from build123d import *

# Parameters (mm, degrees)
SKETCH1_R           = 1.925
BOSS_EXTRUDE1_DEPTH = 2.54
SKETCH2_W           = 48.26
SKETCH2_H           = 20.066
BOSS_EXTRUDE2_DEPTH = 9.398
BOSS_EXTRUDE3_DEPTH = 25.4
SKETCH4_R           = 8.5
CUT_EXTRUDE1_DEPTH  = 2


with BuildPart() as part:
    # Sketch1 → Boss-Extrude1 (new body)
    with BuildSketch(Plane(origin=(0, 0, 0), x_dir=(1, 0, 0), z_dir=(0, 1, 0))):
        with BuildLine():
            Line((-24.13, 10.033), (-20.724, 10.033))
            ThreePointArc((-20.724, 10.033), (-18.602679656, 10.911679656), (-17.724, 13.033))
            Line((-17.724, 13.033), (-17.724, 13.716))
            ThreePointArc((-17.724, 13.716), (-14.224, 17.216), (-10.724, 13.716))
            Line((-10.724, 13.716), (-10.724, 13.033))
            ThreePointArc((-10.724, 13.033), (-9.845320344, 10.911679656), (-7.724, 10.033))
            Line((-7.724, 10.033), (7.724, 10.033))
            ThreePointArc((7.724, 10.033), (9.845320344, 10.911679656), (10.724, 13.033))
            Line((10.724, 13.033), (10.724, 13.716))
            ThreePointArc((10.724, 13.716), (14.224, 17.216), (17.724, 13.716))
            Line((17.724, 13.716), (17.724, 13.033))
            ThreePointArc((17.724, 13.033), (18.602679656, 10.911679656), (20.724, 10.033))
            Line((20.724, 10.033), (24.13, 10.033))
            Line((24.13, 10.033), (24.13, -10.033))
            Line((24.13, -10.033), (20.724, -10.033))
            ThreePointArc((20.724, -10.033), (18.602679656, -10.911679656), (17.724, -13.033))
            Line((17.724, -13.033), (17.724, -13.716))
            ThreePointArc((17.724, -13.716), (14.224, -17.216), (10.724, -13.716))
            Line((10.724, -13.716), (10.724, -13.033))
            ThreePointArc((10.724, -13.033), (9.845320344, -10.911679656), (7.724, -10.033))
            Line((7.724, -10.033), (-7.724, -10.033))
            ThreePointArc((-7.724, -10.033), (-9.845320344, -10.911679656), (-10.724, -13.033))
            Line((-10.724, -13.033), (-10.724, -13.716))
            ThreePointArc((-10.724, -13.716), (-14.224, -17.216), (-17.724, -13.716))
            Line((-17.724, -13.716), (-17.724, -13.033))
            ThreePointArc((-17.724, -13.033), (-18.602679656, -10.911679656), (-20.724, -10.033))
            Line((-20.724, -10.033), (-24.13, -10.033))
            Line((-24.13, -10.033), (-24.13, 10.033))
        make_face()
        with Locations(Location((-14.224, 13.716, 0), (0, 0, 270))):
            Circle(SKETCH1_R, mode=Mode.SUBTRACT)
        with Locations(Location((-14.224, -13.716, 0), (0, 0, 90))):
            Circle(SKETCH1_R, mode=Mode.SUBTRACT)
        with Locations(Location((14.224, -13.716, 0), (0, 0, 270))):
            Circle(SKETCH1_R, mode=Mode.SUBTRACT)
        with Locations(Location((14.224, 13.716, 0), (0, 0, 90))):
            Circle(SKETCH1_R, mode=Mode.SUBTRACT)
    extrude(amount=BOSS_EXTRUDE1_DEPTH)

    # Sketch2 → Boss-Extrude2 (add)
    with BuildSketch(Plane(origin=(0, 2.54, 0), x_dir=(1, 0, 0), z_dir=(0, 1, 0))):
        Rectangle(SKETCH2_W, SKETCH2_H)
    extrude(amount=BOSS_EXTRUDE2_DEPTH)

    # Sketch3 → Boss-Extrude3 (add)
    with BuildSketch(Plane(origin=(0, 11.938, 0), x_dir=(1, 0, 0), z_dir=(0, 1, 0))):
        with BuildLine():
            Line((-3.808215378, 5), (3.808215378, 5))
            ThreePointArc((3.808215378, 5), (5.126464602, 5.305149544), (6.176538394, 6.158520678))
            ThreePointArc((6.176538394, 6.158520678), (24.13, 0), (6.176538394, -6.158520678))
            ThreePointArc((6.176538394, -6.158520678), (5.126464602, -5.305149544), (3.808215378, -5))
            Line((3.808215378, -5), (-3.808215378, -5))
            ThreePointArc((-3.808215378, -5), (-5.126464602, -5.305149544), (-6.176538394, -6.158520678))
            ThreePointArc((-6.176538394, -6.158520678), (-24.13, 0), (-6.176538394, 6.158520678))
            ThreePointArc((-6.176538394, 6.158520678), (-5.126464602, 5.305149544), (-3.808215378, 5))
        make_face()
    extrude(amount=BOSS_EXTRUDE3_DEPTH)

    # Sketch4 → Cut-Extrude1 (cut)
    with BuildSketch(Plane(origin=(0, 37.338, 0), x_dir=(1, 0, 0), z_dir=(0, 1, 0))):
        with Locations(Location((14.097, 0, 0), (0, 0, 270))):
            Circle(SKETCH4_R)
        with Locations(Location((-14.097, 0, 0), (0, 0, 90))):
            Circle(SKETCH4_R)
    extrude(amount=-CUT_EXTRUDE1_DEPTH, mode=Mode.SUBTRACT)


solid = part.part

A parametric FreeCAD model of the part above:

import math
import FreeCAD as App
import Part
import Sketcher
from FreeCAD import Vector
Q = App.Units.Quantity


def add_polygon(sketch, points):
    """Adds a closed chain of lines whose ends are joined by coincident constraints."""
    first, n = sketch.GeometryCount, len(points)
    for a, b in zip(points, points[1:] + points[:1]):
        sketch.addGeometry(Part.LineSegment(App.Vector(*a, 0), App.Vector(*b, 0)), False)
    for i in range(n):
        sketch.addConstraint(Sketcher.Constraint("Coincident", first + i, 2, first + (i + 1) % n, 1))

doc = App.newDocument("Part")
body = doc.addObject("PartDesign::Body", "Body")

# Sketch on XZ plane
sketch1 = body.newObject("Sketcher::SketchObject", "Sketch")
sketch1.AttachmentSupport = (doc.getObject("XZ_Plane"), [""])
sketch1.MapMode = "FlatFace"
sketch1.addGeometry(Part.LineSegment(Vector(-20.7, -10, 0), Vector(-24.1, -10, 0)), False)
sketch1.addGeometry(Part.LineSegment(Vector(-24.1, -10, 0), Vector(-24.1, 10, 0)), False)
sketch1.addGeometry(Part.LineSegment(Vector(-24.1, 10, 0), Vector(-20.7, 10, 0)), False)
sketch1.addGeometry(Part.ArcOfCircle(Part.Circle(Vector(-20.7, 13, 0), Vector(0, 0, 1), 3), math.radians(-90), math.radians(0)), False)
sketch1.addGeometry(Part.LineSegment(Vector(-17.7, 13, 0), Vector(-17.7, 13.7, 0)), False)
sketch1.addGeometry(Part.ArcOfCircle(Part.Circle(Vector(-14.2, 13.7, 0), Vector(0, 0, 1), 3.5), math.radians(0), math.radians(180)), False)
sketch1.addGeometry(Part.LineSegment(Vector(-10.7, 13.7, 0), Vector(-10.7, 13, 0)), False)
sketch1.addGeometry(Part.ArcOfCircle(Part.Circle(Vector(-7.7, 13, 0), Vector(0, 0, 1), 3), math.radians(180), math.radians(270)), False)
sketch1.addGeometry(Part.LineSegment(Vector(-7.7, 10, 0), Vector(7.7, 10, 0)), False)
sketch1.addGeometry(Part.ArcOfCircle(Part.Circle(Vector(7.7, 13, 0), Vector(0, 0, 1), 3), math.radians(-90), math.radians(0)), False)
sketch1.addGeometry(Part.LineSegment(Vector(10.7, 13, 0), Vector(10.7, 13.7, 0)), False)
sketch1.addGeometry(Part.ArcOfCircle(Part.Circle(Vector(14.2, 13.7, 0), Vector(0, 0, 1), 3.5), math.radians(0), math.radians(180)), False)
sketch1.addGeometry(Part.LineSegment(Vector(17.7, 13.7, 0), Vector(17.7, 13, 0)), False)
sketch1.addGeometry(Part.ArcOfCircle(Part.Circle(Vector(20.7, 13, 0), Vector(0, 0, 1), 3), math.radians(180), math.radians(270)), False)
sketch1.addGeometry(Part.LineSegment(Vector(20.7, 10, 0), Vector(24.1, 10, 0)), False)
sketch1.addGeometry(Part.LineSegment(Vector(24.1, 10, 0), Vector(24.1, -10, 0)), False)
sketch1.addGeometry(Part.LineSegment(Vector(24.1, -10, 0), Vector(20.7, -10, 0)), False)
sketch1.addGeometry(Part.ArcOfCircle(Part.Circle(Vector(20.7, -13, 0), Vector(0, 0, 1), 3), math.radians(90), math.radians(180)), False)
sketch1.addGeometry(Part.LineSegment(Vector(17.7, -13, 0), Vector(17.7, -13.7, 0)), False)
sketch1.addGeometry(Part.ArcOfCircle(Part.Circle(Vector(14.2, -13.7, 0), Vector(0, 0, 1), 3.5), math.radians(180), math.radians(360)), False)
sketch1.addGeometry(Part.LineSegment(Vector(10.7, -13.7, 0), Vector(10.7, -13, 0)), False)
sketch1.addGeometry(Part.ArcOfCircle(Part.Circle(Vector(7.7, -13, 0), Vector(0, 0, 1), 3), math.radians(0), math.radians(90)), False)
sketch1.addGeometry(Part.LineSegment(Vector(7.7, -10, 0), Vector(-7.7, -10, 0)), False)
sketch1.addGeometry(Part.ArcOfCircle(Part.Circle(Vector(-7.7, -13, 0), Vector(0, 0, 1), 3), math.radians(90), math.radians(180)), False)
sketch1.addGeometry(Part.LineSegment(Vector(-10.7, -13, 0), Vector(-10.7, -13.7, 0)), False)
sketch1.addGeometry(Part.ArcOfCircle(Part.Circle(Vector(-14.2, -13.7, 0), Vector(0, 0, 1), 3.5), math.radians(180), math.radians(360)), False)
sketch1.addGeometry(Part.LineSegment(Vector(-17.7, -13.7, 0), Vector(-17.7, -13, 0)), False)
sketch1.addGeometry(Part.ArcOfCircle(Part.Circle(Vector(-20.7, -13, 0), Vector(0, 0, 1), 3), math.radians(0), math.radians(90)), False)
sketch1.addGeometry(Part.Circle(Vector(14.2, 13.7, 0), Vector(0, 0, 1), 1.9), False)
sketch1.addGeometry(Part.Circle(Vector(-14.2, 13.7, 0), Vector(0, 0, 1), 1.9), False)
sketch1.addGeometry(Part.Circle(Vector(14.2, -13.7, 0), Vector(0, 0, 1), 1.9), False)
sketch1.addGeometry(Part.Circle(Vector(-14.2, -13.7, 0), Vector(0, 0, 1), 1.9), False)
sketch1.addConstraint(Sketcher.Constraint("Coincident", 0, 2, 1, 1))
sketch1.addConstraint(Sketcher.Constraint("Coincident", 1, 2, 2, 1))
sketch1.addConstraint(Sketcher.Constraint("Tangent", 2, 2, 3, 1))
sketch1.addConstraint(Sketcher.Constraint("Tangent", 3, 2, 4, 1))
sketch1.addConstraint(Sketcher.Constraint("Tangent", 4, 2, 5, 2))
sketch1.addConstraint(Sketcher.Constraint("Tangent", 5, 1, 6, 1))
sketch1.addConstraint(Sketcher.Constraint("Tangent", 6, 2, 7, 1))
sketch1.addConstraint(Sketcher.Constraint("Tangent", 7, 2, 8, 1))
sketch1.addConstraint(Sketcher.Constraint("Tangent", 8, 2, 9, 1))
sketch1.addConstraint(Sketcher.Constraint("Tangent", 9, 2, 10, 1))
sketch1.addConstraint(Sketcher.Constraint("Tangent", 10, 2, 11, 2))
sketch1.addConstraint(Sketcher.Constraint("Tangent", 11, 1, 12, 1))
sketch1.addConstraint(Sketcher.Constraint("Tangent", 12, 2, 13, 1))
sketch1.addConstraint(Sketcher.Constraint("Tangent", 13, 2, 14, 1))
sketch1.addConstraint(Sketcher.Constraint("Coincident", 14, 2, 15, 1))
sketch1.addConstraint(Sketcher.Constraint("Coincident", 15, 2, 16, 1))
sketch1.addConstraint(Sketcher.Constraint("Tangent", 16, 2, 17, 1))
sketch1.addConstraint(Sketcher.Constraint("Tangent", 17, 2, 18, 1))
sketch1.addConstraint(Sketcher.Constraint("Tangent", 18, 2, 19, 2))
sketch1.addConstraint(Sketcher.Constraint("Tangent", 19, 1, 20, 1))
sketch1.addConstraint(Sketcher.Constraint("Tangent", 20, 2, 21, 1))
sketch1.addConstraint(Sketcher.Constraint("Tangent", 21, 2, 22, 1))
sketch1.addConstraint(Sketcher.Constraint("Tangent", 22, 2, 23, 1))
sketch1.addConstraint(Sketcher.Constraint("Tangent", 23, 2, 24, 1))
sketch1.addConstraint(Sketcher.Constraint("Tangent", 24, 2, 25, 2))
sketch1.addConstraint(Sketcher.Constraint("Tangent", 25, 1, 26, 1))
sketch1.addConstraint(Sketcher.Constraint("Tangent", 26, 2, 27, 1))
sketch1.addConstraint(Sketcher.Constraint("Tangent", 27, 2, 0, 1))
sketch1.addConstraint(Sketcher.Constraint("Horizontal", 0))
sketch1.addConstraint(Sketcher.Constraint("Vertical", 1))
sketch1.addConstraint(Sketcher.Constraint("Horizontal", 2))
sketch1.addConstraint(Sketcher.Constraint("Vertical", 4))
sketch1.addConstraint(Sketcher.Constraint("Vertical", 6))
sketch1.addConstraint(Sketcher.Constraint("Horizontal", 8))
sketch1.addConstraint(Sketcher.Constraint("Vertical", 10))
sketch1.addConstraint(Sketcher.Constraint("Vertical", 12))
sketch1.addConstraint(Sketcher.Constraint("Horizontal", 14))
sketch1.addConstraint(Sketcher.Constraint("Vertical", 15))
sketch1.addConstraint(Sketcher.Constraint("Horizontal", 16))
sketch1.addConstraint(Sketcher.Constraint("Vertical", 18))
sketch1.addConstraint(Sketcher.Constraint("Vertical", 20))
sketch1.addConstraint(Sketcher.Constraint("Horizontal", 22))
sketch1.addConstraint(Sketcher.Constraint("Vertical", 24))
sketch1.addConstraint(Sketcher.Constraint("Vertical", 26))
sketch1.addConstraint(Sketcher.Constraint("Coincident", 28, 3, 11, 3))
sketch1.addConstraint(Sketcher.Constraint("Coincident", 29, 3, 5, 3))
sketch1.addConstraint(Sketcher.Constraint("Coincident", 30, 3, 19, 3))
sketch1.addConstraint(Sketcher.Constraint("Coincident", 31, 3, 25, 3))
sketch1.addConstraint(Sketcher.Constraint("Equal", 3, 7))
sketch1.addConstraint(Sketcher.Constraint("Equal", 7, 9))
sketch1.addConstraint(Sketcher.Constraint("Equal", 5, 11))
sketch1.addConstraint(Sketcher.Constraint("Equal", 9, 13))
sketch1.addConstraint(Sketcher.Constraint("Equal", 13, 17))
sketch1.addConstraint(Sketcher.Constraint("Equal", 11, 19))
sketch1.addConstraint(Sketcher.Constraint("Equal", 17, 21))
sketch1.addConstraint(Sketcher.Constraint("Equal", 21, 23))
sketch1.addConstraint(Sketcher.Constraint("Equal", 19, 25))
sketch1.addConstraint(Sketcher.Constraint("Equal", 23, 27))
sketch1.addConstraint(Sketcher.Constraint("Equal", 28, 29))
sketch1.addConstraint(Sketcher.Constraint("Equal", 29, 30))
sketch1.addConstraint(Sketcher.Constraint("Equal", 30, 31))
sketch1.addConstraint(Sketcher.Constraint("Symmetric", 3, 3, 17, 3, -1, 1))
sketch1.addConstraint(Sketcher.Constraint("Symmetric", 9, 3, 23, 3, -1, 1))
sketch1.addConstraint(Sketcher.Constraint("Symmetric", 0, 2, 14, 2, -1, 1))
sketch1.addConstraint(Sketcher.Constraint("Symmetric", 5, 3, 11, 3, -2))
sketch1.addConstraint(Sketcher.Constraint("Horizontal", 3, 3, 7, 3))
sketch1.addConstraint(Sketcher.Constraint("Horizontal", 9, 3, 13, 3))
sketch1.addConstraint(Sketcher.Constraint("Horizontal", 19, 3, 25, 3))
sketch1.addConstraint(Sketcher.Constraint("Equal", 12, 18))
sketch1.addConstraint(Sketcher.Constraint("DistanceY", 1, 1, 1, 2, Q("0.79 in")))
sketch1.addConstraint(Sketcher.Constraint("Diameter", 28, Q("3.85 mm")))
sketch1.addConstraint(Sketcher.Constraint("DistanceX", 5, 3, -1, 1, Q("0.56 in")))
sketch1.addConstraint(Sketcher.Constraint("DistanceY", -1, 1, 5, 3, Q("0.54 in")))
sketch1.addConstraint(Sketcher.Constraint("DistanceX", 0, 2, -1, 1, Q("0.95 in")))
sketch1.addConstraint(Sketcher.Constraint("Radius", 3, Q("3 mm")))
sketch1.addConstraint(Sketcher.Constraint("Radius", 5, Q("3.5 mm")))
pad1 = body.newObject("PartDesign::Pad", "Pad")
pad1.Profile = sketch1
pad1.Length = Q("0.1 in")
pad1.Reversed = True

# Sketch on XZ plane
sketch2 = body.newObject("Sketcher::SketchObject", "Sketch001")
sketch2.AttachmentSupport = (doc.getObject("XZ_Plane"), [""])
sketch2.MapMode = "FlatFace"
sketch2.AttachmentOffset = App.Placement(Vector(0, 0, -0.1 * 25.4), App.Rotation())
add_polygon(sketch2, [(-24, -10), (-24, 10), (24, 10), (24, -10)])  # lines 0-3
sketch2.addConstraint(Sketcher.Constraint("Vertical", 0))
sketch2.addConstraint(Sketcher.Constraint("Horizontal", 1))
sketch2.addConstraint(Sketcher.Constraint("Vertical", 2))
sketch2.addConstraint(Sketcher.Constraint("Horizontal", 3))
sketch2.addConstraint(Sketcher.Constraint("Symmetric", 0, 2, 2, 2, -1, 1))
sketch2.addConstraint(Sketcher.Constraint("DistanceX", 1, 1, 1, 2, Q("1.9 in")))
sketch2.addConstraint(Sketcher.Constraint("DistanceY", 0, 1, 0, 2, Q("0.79 in")))
pad2 = body.newObject("PartDesign::Pad", "Pad001")
pad2.Profile = sketch2
pad2.Length = Q("0.37 in")
pad2.Reversed = True

# Sketch on XZ plane
sketch3 = body.newObject("Sketcher::SketchObject", "Sketch002")
sketch3.AttachmentSupport = (doc.getObject("XZ_Plane"), [""])
sketch3.MapMode = "FlatFace"
sketch3.AttachmentOffset = App.Placement(Vector(0, 0, -0.47 * 25.4), App.Rotation())
sketch3.addGeometry(Part.LineSegment(Vector(3.8, -5, 0), Vector(-3.8, -5, 0)), False)
sketch3.addGeometry(Part.ArcOfCircle(Part.Circle(Vector(-3.8, -8, 0), Vector(0, 0, 1), 3), math.radians(90), math.radians(142)), False)
sketch3.addGeometry(Part.ArcOfCircle(Part.Circle(Vector(-14.1, 0, 0), Vector(0, 0, 1), 10), math.radians(38), math.radians(322)), False)
sketch3.addGeometry(Part.ArcOfCircle(Part.Circle(Vector(-3.8, 8, 0), Vector(0, 0, 1), 3), math.radians(-142), math.radians(-90)), False)
sketch3.addGeometry(Part.LineSegment(Vector(-3.8, 5, 0), Vector(3.8, 5, 0)), False)
sketch3.addGeometry(Part.ArcOfCircle(Part.Circle(Vector(3.8, 8, 0), Vector(0, 0, 1), 3), math.radians(-90), math.radians(-38)), False)
sketch3.addGeometry(Part.ArcOfCircle(Part.Circle(Vector(14.1, 0, 0), Vector(0, 0, 1), 10), math.radians(-142), math.radians(142)), False)
sketch3.addGeometry(Part.ArcOfCircle(Part.Circle(Vector(3.8, -8, 0), Vector(0, 0, 1), 3), math.radians(38), math.radians(90)), False)
sketch3.addConstraint(Sketcher.Constraint("Tangent", 0, 2, 1, 1))
sketch3.addConstraint(Sketcher.Constraint("Tangent", 1, 2, 2, 2))
sketch3.addConstraint(Sketcher.Constraint("Tangent", 2, 1, 3, 1))
sketch3.addConstraint(Sketcher.Constraint("Tangent", 3, 2, 4, 1))
sketch3.addConstraint(Sketcher.Constraint("Tangent", 4, 2, 5, 1))
sketch3.addConstraint(Sketcher.Constraint("Tangent", 5, 2, 6, 2))
sketch3.addConstraint(Sketcher.Constraint("Tangent", 6, 1, 7, 1))
sketch3.addConstraint(Sketcher.Constraint("Tangent", 7, 2, 0, 1))
sketch3.addConstraint(Sketcher.Constraint("Horizontal", 0))
sketch3.addConstraint(Sketcher.Constraint("Horizontal", 4))
sketch3.addConstraint(Sketcher.Constraint("Equal", 1, 3))
sketch3.addConstraint(Sketcher.Constraint("Equal", 3, 5))
sketch3.addConstraint(Sketcher.Constraint("Equal", 2, 6))
sketch3.addConstraint(Sketcher.Constraint("Equal", 5, 7))
sketch3.addConstraint(Sketcher.Constraint("Symmetric", 1, 3, 5, 3, -1, 1))
sketch3.addConstraint(Sketcher.Constraint("Symmetric", 2, 3, 6, 3, -2))
sketch3.addConstraint(Sketcher.Constraint("Radius", 2, Q("0.395 in")))
sketch3.addConstraint(Sketcher.Constraint("Radius", 1, Q("3 mm")))
sketch3.addConstraint(Sketcher.Constraint("DistanceX", 2, 3, 6, 3, Q("1.11 in")))
sketch3.addConstraint(Sketcher.Constraint("DistanceX", 0, 2, 0, 1, Q("7.616431 mm")))
pad3 = body.newObject("PartDesign::Pad", "Pad002")
pad3.Profile = sketch3
pad3.Length = Q("1 in")
pad3.Reversed = True

# Sketch on XZ plane
sketch4 = body.newObject("Sketcher::SketchObject", "Sketch003")
sketch4.AttachmentSupport = (doc.getObject("XZ_Plane"), [""])
sketch4.MapMode = "FlatFace"
sketch4.AttachmentOffset = App.Placement(Vector(0, 0, -1.47 * 25.4), App.Rotation())
sketch4.addGeometry(Part.Circle(Vector(14, 0, 0), Vector(0, 0, 1), 8), False)
sketch4.addGeometry(Part.Circle(Vector(-14, 0, 0), Vector(0, 0, 1), 8), False)
sketch4.addConstraint(Sketcher.Constraint("Equal", 0, 1))
sketch4.addConstraint(Sketcher.Constraint("Symmetric", 0, 3, 1, 3, -1, 1))
sketch4.addConstraint(Sketcher.Constraint("PointOnObject", 0, 3, -1))
sketch4.addConstraint(Sketcher.Constraint("Diameter", 0, Q("17 mm")))
sketch4.addConstraint(Sketcher.Constraint("DistanceX", 1, 3, 0, 3, Q("1.11 in")))
pocket1 = body.newObject("PartDesign::Pocket", "Pocket")
pocket1.Profile = sketch4
pocket1.Length = 2
pocket1.Reversed = True

doc.recompute()
